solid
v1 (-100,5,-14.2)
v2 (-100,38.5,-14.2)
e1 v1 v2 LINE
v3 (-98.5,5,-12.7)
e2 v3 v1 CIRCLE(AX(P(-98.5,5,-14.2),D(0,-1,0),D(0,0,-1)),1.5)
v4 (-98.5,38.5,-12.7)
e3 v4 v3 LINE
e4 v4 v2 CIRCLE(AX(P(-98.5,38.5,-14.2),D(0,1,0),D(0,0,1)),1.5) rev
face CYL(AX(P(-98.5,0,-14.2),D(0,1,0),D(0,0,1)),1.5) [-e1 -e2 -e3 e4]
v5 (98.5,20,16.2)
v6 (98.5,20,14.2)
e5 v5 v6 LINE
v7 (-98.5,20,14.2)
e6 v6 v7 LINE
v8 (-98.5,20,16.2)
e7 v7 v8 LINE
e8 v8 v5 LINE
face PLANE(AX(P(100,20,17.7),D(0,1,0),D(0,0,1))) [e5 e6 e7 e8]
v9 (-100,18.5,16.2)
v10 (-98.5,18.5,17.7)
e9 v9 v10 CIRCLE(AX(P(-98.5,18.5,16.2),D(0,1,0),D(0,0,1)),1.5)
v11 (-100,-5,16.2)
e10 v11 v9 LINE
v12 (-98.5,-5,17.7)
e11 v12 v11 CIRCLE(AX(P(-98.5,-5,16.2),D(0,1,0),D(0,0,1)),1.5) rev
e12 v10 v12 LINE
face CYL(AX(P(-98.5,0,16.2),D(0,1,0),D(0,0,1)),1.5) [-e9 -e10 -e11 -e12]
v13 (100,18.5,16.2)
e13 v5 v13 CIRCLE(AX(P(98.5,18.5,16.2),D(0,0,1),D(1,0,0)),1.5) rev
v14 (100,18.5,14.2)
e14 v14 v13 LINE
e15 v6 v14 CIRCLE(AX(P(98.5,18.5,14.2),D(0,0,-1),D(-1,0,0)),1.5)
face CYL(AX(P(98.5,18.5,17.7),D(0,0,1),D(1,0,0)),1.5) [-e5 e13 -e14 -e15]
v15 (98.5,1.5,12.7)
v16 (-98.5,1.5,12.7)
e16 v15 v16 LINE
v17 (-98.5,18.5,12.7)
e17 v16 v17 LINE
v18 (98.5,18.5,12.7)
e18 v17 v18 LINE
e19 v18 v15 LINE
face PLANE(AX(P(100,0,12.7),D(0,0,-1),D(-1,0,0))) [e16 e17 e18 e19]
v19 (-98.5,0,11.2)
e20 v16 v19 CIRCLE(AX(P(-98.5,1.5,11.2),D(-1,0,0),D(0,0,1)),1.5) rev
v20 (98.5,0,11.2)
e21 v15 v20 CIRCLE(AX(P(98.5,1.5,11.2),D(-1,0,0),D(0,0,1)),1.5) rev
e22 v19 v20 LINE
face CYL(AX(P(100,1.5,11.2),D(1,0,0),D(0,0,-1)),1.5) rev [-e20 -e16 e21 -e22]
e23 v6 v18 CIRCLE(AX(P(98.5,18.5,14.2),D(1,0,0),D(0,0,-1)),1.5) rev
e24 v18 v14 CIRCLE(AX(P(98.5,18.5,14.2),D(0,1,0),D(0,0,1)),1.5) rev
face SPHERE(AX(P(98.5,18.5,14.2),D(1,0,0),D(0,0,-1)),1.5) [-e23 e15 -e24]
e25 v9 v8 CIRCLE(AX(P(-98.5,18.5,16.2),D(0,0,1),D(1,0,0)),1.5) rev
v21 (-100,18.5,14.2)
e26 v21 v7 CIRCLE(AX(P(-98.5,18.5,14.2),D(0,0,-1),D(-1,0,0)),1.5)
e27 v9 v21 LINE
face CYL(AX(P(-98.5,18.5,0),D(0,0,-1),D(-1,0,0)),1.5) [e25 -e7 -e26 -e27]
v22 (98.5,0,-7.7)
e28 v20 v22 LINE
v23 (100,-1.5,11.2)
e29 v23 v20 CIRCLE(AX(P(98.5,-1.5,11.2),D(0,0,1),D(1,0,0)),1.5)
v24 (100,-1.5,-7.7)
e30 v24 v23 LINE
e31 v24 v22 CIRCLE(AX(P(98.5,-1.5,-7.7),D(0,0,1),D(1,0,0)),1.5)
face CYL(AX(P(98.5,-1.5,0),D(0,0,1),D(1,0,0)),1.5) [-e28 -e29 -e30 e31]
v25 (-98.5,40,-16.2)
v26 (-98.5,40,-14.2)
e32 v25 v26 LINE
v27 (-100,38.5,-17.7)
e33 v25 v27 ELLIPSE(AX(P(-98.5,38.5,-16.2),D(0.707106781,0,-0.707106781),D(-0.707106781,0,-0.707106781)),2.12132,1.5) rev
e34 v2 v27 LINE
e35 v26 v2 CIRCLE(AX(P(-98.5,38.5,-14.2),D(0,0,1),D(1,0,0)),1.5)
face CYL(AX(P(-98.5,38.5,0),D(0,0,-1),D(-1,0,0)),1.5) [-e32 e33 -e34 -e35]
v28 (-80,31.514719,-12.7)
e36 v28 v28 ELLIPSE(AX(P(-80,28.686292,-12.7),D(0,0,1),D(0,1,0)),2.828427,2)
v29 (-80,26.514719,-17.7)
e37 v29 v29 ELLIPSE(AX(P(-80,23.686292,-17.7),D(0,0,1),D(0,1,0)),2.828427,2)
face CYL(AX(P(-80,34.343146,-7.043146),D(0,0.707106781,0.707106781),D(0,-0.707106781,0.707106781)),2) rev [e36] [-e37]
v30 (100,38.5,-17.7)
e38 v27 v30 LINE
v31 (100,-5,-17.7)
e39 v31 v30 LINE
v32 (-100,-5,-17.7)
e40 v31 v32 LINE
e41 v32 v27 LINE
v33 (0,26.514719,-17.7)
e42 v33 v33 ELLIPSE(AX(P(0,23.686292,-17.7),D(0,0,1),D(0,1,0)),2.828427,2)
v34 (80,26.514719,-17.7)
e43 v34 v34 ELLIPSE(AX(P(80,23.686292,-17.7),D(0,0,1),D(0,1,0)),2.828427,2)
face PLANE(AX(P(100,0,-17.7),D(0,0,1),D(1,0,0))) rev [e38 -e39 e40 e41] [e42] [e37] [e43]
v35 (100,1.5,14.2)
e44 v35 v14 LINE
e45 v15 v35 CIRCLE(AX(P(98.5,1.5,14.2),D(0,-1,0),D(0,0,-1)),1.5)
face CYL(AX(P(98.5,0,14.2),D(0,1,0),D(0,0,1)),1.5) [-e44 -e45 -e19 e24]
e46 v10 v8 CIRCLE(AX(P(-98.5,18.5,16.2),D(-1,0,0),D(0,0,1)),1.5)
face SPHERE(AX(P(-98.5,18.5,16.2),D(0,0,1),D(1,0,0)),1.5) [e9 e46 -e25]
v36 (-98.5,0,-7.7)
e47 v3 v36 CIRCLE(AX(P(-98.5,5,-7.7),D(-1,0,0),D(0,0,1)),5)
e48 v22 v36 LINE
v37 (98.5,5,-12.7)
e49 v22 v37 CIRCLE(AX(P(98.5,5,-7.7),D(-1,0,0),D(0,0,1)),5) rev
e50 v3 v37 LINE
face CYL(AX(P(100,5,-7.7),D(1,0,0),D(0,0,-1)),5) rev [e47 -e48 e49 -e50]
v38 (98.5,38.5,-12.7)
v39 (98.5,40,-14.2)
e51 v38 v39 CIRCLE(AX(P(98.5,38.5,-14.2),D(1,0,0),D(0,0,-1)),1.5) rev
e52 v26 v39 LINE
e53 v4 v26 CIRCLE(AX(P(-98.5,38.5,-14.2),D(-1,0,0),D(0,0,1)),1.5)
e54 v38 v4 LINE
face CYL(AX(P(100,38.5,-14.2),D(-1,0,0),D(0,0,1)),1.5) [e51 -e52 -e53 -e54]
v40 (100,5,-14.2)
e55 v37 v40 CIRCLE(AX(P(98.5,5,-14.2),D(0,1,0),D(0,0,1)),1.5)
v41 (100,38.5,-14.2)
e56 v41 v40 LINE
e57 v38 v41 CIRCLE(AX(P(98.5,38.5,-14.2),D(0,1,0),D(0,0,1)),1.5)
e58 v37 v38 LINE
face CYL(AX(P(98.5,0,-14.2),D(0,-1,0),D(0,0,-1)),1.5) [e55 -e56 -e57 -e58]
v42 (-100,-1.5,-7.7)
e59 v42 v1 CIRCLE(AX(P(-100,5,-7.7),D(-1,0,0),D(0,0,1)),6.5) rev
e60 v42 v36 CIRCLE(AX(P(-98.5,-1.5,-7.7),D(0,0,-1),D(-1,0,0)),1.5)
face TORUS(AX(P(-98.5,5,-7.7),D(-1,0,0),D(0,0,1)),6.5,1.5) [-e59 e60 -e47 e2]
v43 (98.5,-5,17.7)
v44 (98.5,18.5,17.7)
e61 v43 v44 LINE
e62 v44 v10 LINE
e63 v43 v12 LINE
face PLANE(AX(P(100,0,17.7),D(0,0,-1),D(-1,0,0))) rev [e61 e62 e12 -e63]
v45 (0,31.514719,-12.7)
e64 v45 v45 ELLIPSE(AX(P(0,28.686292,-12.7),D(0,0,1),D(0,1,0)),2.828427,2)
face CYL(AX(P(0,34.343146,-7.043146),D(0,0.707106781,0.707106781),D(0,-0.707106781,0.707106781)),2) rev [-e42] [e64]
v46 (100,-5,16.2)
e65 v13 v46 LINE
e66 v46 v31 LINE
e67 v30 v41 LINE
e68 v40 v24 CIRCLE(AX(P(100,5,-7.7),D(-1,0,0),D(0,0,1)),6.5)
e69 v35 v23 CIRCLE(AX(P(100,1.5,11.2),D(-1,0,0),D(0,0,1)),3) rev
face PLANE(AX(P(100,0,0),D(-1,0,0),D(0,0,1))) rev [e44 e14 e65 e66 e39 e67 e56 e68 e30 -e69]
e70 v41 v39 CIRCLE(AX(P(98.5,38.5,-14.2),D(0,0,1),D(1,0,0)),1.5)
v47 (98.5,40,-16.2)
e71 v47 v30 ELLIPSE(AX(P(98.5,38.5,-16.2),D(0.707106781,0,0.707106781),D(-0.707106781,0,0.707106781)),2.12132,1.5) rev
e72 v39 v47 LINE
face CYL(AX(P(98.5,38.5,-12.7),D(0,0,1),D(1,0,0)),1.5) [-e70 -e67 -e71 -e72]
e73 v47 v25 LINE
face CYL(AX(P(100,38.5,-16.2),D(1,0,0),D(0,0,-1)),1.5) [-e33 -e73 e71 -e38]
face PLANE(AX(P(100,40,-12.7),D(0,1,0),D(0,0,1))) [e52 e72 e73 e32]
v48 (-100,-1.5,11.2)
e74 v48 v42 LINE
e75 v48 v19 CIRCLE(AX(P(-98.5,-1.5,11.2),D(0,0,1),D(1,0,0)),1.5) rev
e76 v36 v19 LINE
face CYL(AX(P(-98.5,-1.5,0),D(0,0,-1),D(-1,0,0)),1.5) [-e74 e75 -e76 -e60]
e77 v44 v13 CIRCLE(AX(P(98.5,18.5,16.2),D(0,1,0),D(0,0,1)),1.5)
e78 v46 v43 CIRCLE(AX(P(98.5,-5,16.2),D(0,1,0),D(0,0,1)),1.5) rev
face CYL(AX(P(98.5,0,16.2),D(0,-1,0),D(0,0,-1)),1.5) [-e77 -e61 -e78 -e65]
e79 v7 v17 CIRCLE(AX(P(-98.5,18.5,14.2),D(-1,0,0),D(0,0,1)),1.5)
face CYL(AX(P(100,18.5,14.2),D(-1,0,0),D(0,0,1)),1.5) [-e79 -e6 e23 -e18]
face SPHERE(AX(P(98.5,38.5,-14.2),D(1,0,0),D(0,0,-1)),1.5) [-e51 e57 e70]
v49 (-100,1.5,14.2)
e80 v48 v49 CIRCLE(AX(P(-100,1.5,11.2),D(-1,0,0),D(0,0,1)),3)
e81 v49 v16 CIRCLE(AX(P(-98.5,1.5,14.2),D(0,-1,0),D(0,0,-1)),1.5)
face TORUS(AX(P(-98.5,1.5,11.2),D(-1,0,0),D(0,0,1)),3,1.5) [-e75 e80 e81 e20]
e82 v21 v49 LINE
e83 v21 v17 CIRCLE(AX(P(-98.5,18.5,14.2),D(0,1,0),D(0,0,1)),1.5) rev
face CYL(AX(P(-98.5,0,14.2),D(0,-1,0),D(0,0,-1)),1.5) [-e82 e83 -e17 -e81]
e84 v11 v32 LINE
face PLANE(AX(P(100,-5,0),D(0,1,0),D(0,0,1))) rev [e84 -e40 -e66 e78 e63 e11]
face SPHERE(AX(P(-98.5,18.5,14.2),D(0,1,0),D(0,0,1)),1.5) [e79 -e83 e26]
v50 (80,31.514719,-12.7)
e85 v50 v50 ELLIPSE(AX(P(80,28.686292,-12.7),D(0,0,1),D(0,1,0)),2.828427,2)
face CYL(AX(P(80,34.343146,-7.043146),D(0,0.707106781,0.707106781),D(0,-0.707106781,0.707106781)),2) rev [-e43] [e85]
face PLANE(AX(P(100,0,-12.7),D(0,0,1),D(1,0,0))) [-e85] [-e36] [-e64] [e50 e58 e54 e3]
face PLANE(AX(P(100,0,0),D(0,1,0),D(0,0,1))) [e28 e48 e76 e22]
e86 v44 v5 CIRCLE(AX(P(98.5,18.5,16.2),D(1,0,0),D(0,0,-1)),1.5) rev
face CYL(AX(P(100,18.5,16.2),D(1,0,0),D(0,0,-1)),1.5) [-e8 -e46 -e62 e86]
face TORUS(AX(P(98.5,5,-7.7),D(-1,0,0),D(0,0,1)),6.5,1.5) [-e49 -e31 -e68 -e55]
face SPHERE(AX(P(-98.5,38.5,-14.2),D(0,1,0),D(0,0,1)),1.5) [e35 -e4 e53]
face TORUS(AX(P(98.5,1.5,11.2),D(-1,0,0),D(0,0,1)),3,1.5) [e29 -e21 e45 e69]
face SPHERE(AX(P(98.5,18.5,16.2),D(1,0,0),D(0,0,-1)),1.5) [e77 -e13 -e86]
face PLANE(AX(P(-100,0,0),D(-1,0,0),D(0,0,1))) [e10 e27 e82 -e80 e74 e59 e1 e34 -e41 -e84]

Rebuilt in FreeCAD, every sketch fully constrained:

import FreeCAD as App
import Part
import Sketcher
from FreeCAD import Vector


def edges_at(feature, points):
    """Names of the edges that pass closest to the given points."""
    edges = feature.Shape.Edges
    near = lambda p: min(range(len(edges)), key=lambda i: edges[i].distToShape(Part.Vertex(*p))[0])
    return sorted({f"Edge{near(p) + 1}" for p in points})

doc = App.newDocument("Part")
body = doc.addObject("PartDesign::Body", "Body")

sketch1 = doc.addObject("Sketcher::SketchObject", "Sketch")
body.addObject(sketch1)
sketch1.AttachmentSupport = (doc.YZ_Plane, [""])
sketch1.MapMode = "FlatFace"
sketch1.addGeometry([
    Part.LineSegment(Vector(40, -13, 0), Vector(0, -13, 0)),
    Part.LineSegment(Vector(0, -13, 0), Vector(0, 13, 0)),
    Part.LineSegment(Vector(0, 13, 0), Vector(20, 13, 0)),
    Part.LineSegment(Vector(20, 13, 0), Vector(20, 18, 0)),
    Part.LineSegment(Vector(20, 18, 0), Vector(-5, 18, 0)),
    Part.LineSegment(Vector(-5, 18, 0), Vector(-5, -18, 0)),
    Part.LineSegment(Vector(-5, -18, 0), Vector(40, -18, 0)),
    Part.LineSegment(Vector(40, -18, 0), Vector(40, -13, 0)),
], False)
sketch1.addConstraint([
    Sketcher.Constraint("Coincident", 0, 2, 1, 1),
    Sketcher.Constraint("Coincident", 1, 2, 2, 1),
    Sketcher.Constraint("Coincident", 2, 2, 3, 1),
    Sketcher.Constraint("Coincident", 3, 2, 4, 1),
    Sketcher.Constraint("Coincident", 4, 2, 5, 1),
    Sketcher.Constraint("Coincident", 5, 2, 6, 1),
    Sketcher.Constraint("Coincident", 6, 2, 7, 1),
    Sketcher.Constraint("Coincident", 7, 2, 0, 1),
    Sketcher.Constraint("Horizontal", 0),
    Sketcher.Constraint("Vertical", 1),
    Sketcher.Constraint("Horizontal", 2),
    Sketcher.Constraint("Vertical", 3),
    Sketcher.Constraint("Horizontal", 4),
    Sketcher.Constraint("Vertical", 5),
    Sketcher.Constraint("Horizontal", 6),
    Sketcher.Constraint("Vertical", 7),
    Sketcher.Constraint("Symmetric", 0, 2, 1, 2, -1, 1),
    Sketcher.Constraint("Equal", 3, 7),
    Sketcher.Constraint("DistanceX", 0, 2, 0, 1, 40.0),
    Sketcher.Constraint("DistanceX", 2, 1, 2, 2, 20.0),
    Sketcher.Constraint("DistanceX", 4, 2, 4, 1, 25.0),
    Sketcher.Constraint("DistanceY", 3, 1, 3, 2, 5.0),
    Sketcher.Constraint("DistanceY", 1, 1, 1, 2, 25.4),
])
pad1 = doc.addObject("PartDesign::Pad", "Pad")
body.addObject(pad1)
pad1.Profile = sketch1
pad1.Length = 200
pad1.Midplane = True

sketch2 = doc.addObject("Sketcher::SketchObject", "Sketch001")
body.addObject(sketch2)
sketch2.Placement = App.Placement(Vector(0, 13.65, 13.65), App.Rotation(Vector(-1, 0, 0), Vector(0, -0.707106781, 0.707106781), Vector(0, 0.707106781, 0.707106781), "ZXY"))
sketch2.addGeometry([
    Part.Circle(Vector(80, -29.3, 0), Vector(0, 0, 1), 2),
    Part.Circle(Vector(-80, -29.3, 0), Vector(0, 0, 1), 2),
    Part.Circle(Vector(0, -29.3, 0), Vector(0, 0, 1), 2),
], False)
sketch2.addConstraint([
    Sketcher.Constraint("Equal", 0, 1),
    Sketcher.Constraint("Equal", 1, 2),
    Sketcher.Constraint("Symmetric", 0, 3, 1, 3, -2),
    Sketcher.Constraint("PointOnObject", 2, 3, -2),
    Sketcher.Constraint("Horizontal", 1, 3, 2, 3),
    Sketcher.Constraint("Diameter", 0, 4.0),
    Sketcher.Constraint("DistanceX", -1, 1, 0, 3, 80.0),
    Sketcher.Constraint("DistanceY", 0, 3, -1, 1, 29.264527),
])
doc.recompute()
hole = doc.addObject("PartDesign::Hole", "Hole")
body.addObject(hole)
hole.Profile = sketch2
hole.ThreadType = "None"
hole.Diameter = 4
hole.DepthType = "ThroughAll"
doc.recompute()

fillet = doc.addObject("PartDesign::Fillet", "Fillet")
body.addObject(fillet)
fillet.Base = (hole, edges_at(hole, [(0, 0, -12.7)]))
fillet.Radius = 5
doc.recompute()

fillet2 = doc.addObject("PartDesign::Fillet", "Fillet001")
body.addObject(fillet2)
fillet2.Base = (fillet, edges_at(fillet, [
    (-100, 10, 12.7),
    (-100, 0, 2.5),
    (-100, 40, -15.2),
    (0, 20, 17.7),
    (0, 20, 12.7),
    (0, 0, 12.7),
    (0, 40, -12.7),
    (0, 40, -17.7),
    (100, 0, 2.5),
    (100, 10, 12.7),
    (100, 20, 15.2),
    (100, 7.5, 17.7),
    (-100, 22.5, -12.7),
    (100, 22.5, -12.7),
    (-100, 1.464, -11.236),
    (100, 1.464, -11.236),
    (100, 40, -15.2),
    (-100, 7.5, 17.7),
    (-100, 20, 15.2),
]))
fillet2.Radius = 1.5

doc.recompute()
